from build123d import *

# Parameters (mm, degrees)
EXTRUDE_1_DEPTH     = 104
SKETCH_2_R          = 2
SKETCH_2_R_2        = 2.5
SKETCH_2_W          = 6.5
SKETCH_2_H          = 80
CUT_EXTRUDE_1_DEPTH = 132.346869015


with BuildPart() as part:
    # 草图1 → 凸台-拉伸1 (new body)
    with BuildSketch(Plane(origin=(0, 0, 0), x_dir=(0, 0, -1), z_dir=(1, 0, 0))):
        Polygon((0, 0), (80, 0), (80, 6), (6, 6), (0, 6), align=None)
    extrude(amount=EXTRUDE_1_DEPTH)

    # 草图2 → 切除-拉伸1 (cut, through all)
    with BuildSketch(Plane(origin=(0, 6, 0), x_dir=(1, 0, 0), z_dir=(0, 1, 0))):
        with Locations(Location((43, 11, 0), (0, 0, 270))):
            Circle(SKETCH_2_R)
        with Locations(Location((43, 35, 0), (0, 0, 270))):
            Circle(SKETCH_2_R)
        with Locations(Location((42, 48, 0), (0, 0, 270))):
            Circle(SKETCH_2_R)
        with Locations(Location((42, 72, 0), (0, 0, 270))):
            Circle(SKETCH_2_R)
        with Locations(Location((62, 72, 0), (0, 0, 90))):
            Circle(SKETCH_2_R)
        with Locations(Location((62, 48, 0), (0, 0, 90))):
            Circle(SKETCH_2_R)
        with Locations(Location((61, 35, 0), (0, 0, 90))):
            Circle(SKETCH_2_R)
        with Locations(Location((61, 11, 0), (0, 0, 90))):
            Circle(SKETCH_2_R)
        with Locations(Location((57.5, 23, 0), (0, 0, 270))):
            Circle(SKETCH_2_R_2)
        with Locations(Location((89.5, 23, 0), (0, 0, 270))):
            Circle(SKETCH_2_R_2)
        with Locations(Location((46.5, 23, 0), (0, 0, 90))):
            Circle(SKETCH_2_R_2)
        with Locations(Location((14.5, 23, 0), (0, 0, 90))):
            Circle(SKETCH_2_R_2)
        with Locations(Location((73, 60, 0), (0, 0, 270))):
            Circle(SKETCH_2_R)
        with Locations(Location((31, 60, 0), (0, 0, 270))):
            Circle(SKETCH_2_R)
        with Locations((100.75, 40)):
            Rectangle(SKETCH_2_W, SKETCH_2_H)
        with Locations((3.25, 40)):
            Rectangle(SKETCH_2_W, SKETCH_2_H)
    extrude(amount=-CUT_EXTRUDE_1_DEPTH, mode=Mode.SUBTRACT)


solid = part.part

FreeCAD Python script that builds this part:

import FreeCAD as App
import Part
import Sketcher

V = App.Vector


def add_polygon(sketch, points):
    """Adds a closed chain of lines whose ends are joined by coincident constraints."""
    first, n = sketch.GeometryCount, len(points)
    for a, b in zip(points, points[1:] + points[:1]):
        sketch.addGeometry(Part.LineSegment(App.Vector(*a, 0), App.Vector(*b, 0)), False)
    for i in range(n):
        sketch.addConstraint(Sketcher.Constraint("Coincident", first + i, 2, first + (i + 1) % n, 1))

doc = App.newDocument("Part")
body = doc.addObject("PartDesign::Body", "Body")

# Sketch on YZ plane
sketch1 = doc.addObject("Sketcher::SketchObject", "Sketch")
body.addObject(sketch1)
sketch1.AttachmentSupport = (doc.YZ_Plane, [""])
sketch1.MapMode = "FlatFace"
add_polygon(sketch1, [(0, 0), (0, -80), (6, -80), (6, 0)])  # lines 0-3
sketch1.addConstraint([
    Sketcher.Constraint("Vertical", 0),
    Sketcher.Constraint("Horizontal", 1),
    Sketcher.Constraint("Vertical", 2),
    Sketcher.Constraint("Horizontal", 3),
    Sketcher.Constraint("Coincident", 3, 2, -1, 1),
    Sketcher.Constraint("DistanceX", 1, 1, 1, 2, 6.0),
    Sketcher.Constraint("DistanceY", 0, 2, 0, 1, 80.0),
])
pad1 = doc.addObject("PartDesign::Pad", "Pad")
body.addObject(pad1)
pad1.Profile = sketch1
pad1.Length = 104

# Sketch on XZ plane
sketch2 = doc.addObject("Sketcher::SketchObject", "Sketch001")
body.addObject(sketch2)
sketch2.AttachmentSupport = (doc.XZ_Plane, [""])
sketch2.MapMode = "FlatFace"
sketch2.AttachmentOffset = App.Placement(V(0, 0, -6), App.Rotation())
sketch2.addGeometry(Part.Circle(V(43, -11, 0), V(0, 0, 1), 2), False)  # 0
sketch2.addGeometry(Part.Circle(V(43, -35, 0), V(0, 0, 1), 2), False)  # 1
sketch2.addGeometry(Part.Circle(V(42, -48, 0), V(0, 0, 1), 2), False)  # 2
sketch2.addGeometry(Part.Circle(V(42, -72, 0), V(0, 0, 1), 2), False)  # 3
sketch2.addGeometry(Part.Circle(V(62, -72, 0), V(0, 0, 1), 2), False)  # 4
sketch2.addGeometry(Part.Circle(V(62, -48, 0), V(0, 0, 1), 2), False)  # 5
sketch2.addGeometry(Part.Circle(V(61, -35, 0), V(0, 0, 1), 2), False)  # 6
sketch2.addGeometry(Part.Circle(V(61, -11, 0), V(0, 0, 1), 2), False)  # 7
sketch2.addGeometry(Part.Circle(V(57.5, -23, 0), V(0, 0, 1), 2.5), False)  # 8
sketch2.addGeometry(Part.Circle(V(89.5, -23, 0), V(0, 0, 1), 2.5), False)  # 9
sketch2.addGeometry(Part.Circle(V(46.5, -23, 0), V(0, 0, 1), 2.5), False)  # 10
sketch2.addGeometry(Part.Circle(V(14.5, -23, 0), V(0, 0, 1), 2.5), False)  # 11
sketch2.addGeometry(Part.Circle(V(73, -60, 0), V(0, 0, 1), 2), False)  # 12
sketch2.addGeometry(Part.Circle(V(31, -60, 0), V(0, 0, 1), 2), False)  # 13
add_polygon(sketch2, [(97.5, -80), (97.5, 0), (104, 0), (104, -80)])  # lines 14-17
add_polygon(sketch2, [(0, -80), (0, 0), (6.5, 0), (6.5, -80)])  # lines 18-21
sketch2.addConstraint([
    Sketcher.Constraint("Vertical", 14),
    Sketcher.Constraint("Horizontal", 15),
    Sketcher.Constraint("Vertical", 16),
    Sketcher.Constraint("Horizontal", 17),
    Sketcher.Constraint("Vertical", 18),
    Sketcher.Constraint("Horizontal", 19),
    Sketcher.Constraint("Vertical", 20),
    Sketcher.Constraint("Horizontal", 21),
    Sketcher.Constraint("Coincident", 18, 2, -1, 1),
    Sketcher.Constraint("Equal", 0, 1),
    Sketcher.Constraint("Equal", 1, 2),
    Sketcher.Constraint("Equal", 2, 3),
    Sketcher.Constraint("Equal", 3, 4),
    Sketcher.Constraint("Equal", 4, 5),
    Sketcher.Constraint("Equal", 5, 6),
    Sketcher.Constraint("Equal", 6, 7),
    Sketcher.Constraint("Equal", 8, 9),
    Sketcher.Constraint("Equal", 9, 10),
    Sketcher.Constraint("Equal", 10, 11),
    Sketcher.Constraint("Equal", 7, 12),
    Sketcher.Constraint("Equal", 12, 13),
    Sketcher.Constraint("PointOnObject", 14, 2, -1),
    Sketcher.Constraint("Horizontal", 3, 3, 4, 3),
    Sketcher.Constraint("Horizontal", 2, 3, 5, 3),
    Sketcher.Constraint("Horizontal", 1, 3, 6, 3),
    Sketcher.Constraint("Horizontal", 0, 3, 7, 3),
    Sketcher.Constraint("Horizontal", 8, 3, 9, 3),
    Sketcher.Constraint("Horizontal", 9, 3, 10, 3),
    Sketcher.Constraint("Horizontal", 10, 3, 11, 3),
    Sketcher.Constraint("Horizontal", 12, 3, 13, 3),
    Sketcher.Constraint("Horizontal", 17, 2, 20, 2),
    Sketcher.Constraint("Vertical", 0, 3, 1, 3),
    Sketcher.Constraint("Vertical", 2, 3, 3, 3),
    Sketcher.Constraint("Vertical", 4, 3, 5, 3),
    Sketcher.Constraint("Vertical", 6, 3, 7, 3),
    Sketcher.Constraint("Equal", 17, 19),
    Sketcher.Constraint("Diameter", 0, 4.0),
    Sketcher.Constraint("Diameter", 8, 5.0),
    Sketcher.Constraint("DistanceY", 14, 1, 14, 2, 80.0),
    Sketcher.Constraint("DistanceX", 15, 1, 15, 2, 6.5),
    Sketcher.Constraint("DistanceX", -1, 1, 0, 3, 43.0),
    Sketcher.Constraint("DistanceY", 0, 3, -1, 1, 11.0),
    Sketcher.Constraint("DistanceY", 1, 3, -1, 1, 35.0),
    Sketcher.Constraint("DistanceX", -1, 1, 2, 3, 42.0),
    Sketcher.Constraint("DistanceY", 2, 3, -1, 1, 48.0),
    Sketcher.Constraint("DistanceY", 3, 3, -1, 1, 72.0),
    Sketcher.Constraint("DistanceX", -1, 1, 4, 3, 62.0),
    Sketcher.Constraint("DistanceX", -1, 1, 6, 3, 61.0),
    Sketcher.Constraint("DistanceY", 8, 3, -1, 1, 23.0),
    Sketcher.Constraint("DistanceX", -1, 1, 12, 3, 73.0),
    Sketcher.Constraint("DistanceY", 12, 3, -1, 1, 60.0),
    Sketcher.Constraint("DistanceX", -1, 1, 13, 3, 31.0),
    Sketcher.Constraint("DistanceX", -1, 1, 15, 2, 104.0),
    Sketcher.Constraint("DistanceX", 8, 3, 9, 3, 32.0),
    Sketcher.Constraint("DistanceX", 10, 3, 8, 3, 11.0),
    Sketcher.Constraint("DistanceX", 11, 3, 10, 3, 32.0),
    Sketcher.Constraint("DistanceX", 9, 3, 14, 2, 8.0),
])
pocket1 = doc.addObject("PartDesign::Pocket", "Pocket")
body.addObject(pocket1)
pocket1.Profile = sketch2
pocket1.Type = "ThroughAll"
pocket1.Reversed = True

doc.recompute()
